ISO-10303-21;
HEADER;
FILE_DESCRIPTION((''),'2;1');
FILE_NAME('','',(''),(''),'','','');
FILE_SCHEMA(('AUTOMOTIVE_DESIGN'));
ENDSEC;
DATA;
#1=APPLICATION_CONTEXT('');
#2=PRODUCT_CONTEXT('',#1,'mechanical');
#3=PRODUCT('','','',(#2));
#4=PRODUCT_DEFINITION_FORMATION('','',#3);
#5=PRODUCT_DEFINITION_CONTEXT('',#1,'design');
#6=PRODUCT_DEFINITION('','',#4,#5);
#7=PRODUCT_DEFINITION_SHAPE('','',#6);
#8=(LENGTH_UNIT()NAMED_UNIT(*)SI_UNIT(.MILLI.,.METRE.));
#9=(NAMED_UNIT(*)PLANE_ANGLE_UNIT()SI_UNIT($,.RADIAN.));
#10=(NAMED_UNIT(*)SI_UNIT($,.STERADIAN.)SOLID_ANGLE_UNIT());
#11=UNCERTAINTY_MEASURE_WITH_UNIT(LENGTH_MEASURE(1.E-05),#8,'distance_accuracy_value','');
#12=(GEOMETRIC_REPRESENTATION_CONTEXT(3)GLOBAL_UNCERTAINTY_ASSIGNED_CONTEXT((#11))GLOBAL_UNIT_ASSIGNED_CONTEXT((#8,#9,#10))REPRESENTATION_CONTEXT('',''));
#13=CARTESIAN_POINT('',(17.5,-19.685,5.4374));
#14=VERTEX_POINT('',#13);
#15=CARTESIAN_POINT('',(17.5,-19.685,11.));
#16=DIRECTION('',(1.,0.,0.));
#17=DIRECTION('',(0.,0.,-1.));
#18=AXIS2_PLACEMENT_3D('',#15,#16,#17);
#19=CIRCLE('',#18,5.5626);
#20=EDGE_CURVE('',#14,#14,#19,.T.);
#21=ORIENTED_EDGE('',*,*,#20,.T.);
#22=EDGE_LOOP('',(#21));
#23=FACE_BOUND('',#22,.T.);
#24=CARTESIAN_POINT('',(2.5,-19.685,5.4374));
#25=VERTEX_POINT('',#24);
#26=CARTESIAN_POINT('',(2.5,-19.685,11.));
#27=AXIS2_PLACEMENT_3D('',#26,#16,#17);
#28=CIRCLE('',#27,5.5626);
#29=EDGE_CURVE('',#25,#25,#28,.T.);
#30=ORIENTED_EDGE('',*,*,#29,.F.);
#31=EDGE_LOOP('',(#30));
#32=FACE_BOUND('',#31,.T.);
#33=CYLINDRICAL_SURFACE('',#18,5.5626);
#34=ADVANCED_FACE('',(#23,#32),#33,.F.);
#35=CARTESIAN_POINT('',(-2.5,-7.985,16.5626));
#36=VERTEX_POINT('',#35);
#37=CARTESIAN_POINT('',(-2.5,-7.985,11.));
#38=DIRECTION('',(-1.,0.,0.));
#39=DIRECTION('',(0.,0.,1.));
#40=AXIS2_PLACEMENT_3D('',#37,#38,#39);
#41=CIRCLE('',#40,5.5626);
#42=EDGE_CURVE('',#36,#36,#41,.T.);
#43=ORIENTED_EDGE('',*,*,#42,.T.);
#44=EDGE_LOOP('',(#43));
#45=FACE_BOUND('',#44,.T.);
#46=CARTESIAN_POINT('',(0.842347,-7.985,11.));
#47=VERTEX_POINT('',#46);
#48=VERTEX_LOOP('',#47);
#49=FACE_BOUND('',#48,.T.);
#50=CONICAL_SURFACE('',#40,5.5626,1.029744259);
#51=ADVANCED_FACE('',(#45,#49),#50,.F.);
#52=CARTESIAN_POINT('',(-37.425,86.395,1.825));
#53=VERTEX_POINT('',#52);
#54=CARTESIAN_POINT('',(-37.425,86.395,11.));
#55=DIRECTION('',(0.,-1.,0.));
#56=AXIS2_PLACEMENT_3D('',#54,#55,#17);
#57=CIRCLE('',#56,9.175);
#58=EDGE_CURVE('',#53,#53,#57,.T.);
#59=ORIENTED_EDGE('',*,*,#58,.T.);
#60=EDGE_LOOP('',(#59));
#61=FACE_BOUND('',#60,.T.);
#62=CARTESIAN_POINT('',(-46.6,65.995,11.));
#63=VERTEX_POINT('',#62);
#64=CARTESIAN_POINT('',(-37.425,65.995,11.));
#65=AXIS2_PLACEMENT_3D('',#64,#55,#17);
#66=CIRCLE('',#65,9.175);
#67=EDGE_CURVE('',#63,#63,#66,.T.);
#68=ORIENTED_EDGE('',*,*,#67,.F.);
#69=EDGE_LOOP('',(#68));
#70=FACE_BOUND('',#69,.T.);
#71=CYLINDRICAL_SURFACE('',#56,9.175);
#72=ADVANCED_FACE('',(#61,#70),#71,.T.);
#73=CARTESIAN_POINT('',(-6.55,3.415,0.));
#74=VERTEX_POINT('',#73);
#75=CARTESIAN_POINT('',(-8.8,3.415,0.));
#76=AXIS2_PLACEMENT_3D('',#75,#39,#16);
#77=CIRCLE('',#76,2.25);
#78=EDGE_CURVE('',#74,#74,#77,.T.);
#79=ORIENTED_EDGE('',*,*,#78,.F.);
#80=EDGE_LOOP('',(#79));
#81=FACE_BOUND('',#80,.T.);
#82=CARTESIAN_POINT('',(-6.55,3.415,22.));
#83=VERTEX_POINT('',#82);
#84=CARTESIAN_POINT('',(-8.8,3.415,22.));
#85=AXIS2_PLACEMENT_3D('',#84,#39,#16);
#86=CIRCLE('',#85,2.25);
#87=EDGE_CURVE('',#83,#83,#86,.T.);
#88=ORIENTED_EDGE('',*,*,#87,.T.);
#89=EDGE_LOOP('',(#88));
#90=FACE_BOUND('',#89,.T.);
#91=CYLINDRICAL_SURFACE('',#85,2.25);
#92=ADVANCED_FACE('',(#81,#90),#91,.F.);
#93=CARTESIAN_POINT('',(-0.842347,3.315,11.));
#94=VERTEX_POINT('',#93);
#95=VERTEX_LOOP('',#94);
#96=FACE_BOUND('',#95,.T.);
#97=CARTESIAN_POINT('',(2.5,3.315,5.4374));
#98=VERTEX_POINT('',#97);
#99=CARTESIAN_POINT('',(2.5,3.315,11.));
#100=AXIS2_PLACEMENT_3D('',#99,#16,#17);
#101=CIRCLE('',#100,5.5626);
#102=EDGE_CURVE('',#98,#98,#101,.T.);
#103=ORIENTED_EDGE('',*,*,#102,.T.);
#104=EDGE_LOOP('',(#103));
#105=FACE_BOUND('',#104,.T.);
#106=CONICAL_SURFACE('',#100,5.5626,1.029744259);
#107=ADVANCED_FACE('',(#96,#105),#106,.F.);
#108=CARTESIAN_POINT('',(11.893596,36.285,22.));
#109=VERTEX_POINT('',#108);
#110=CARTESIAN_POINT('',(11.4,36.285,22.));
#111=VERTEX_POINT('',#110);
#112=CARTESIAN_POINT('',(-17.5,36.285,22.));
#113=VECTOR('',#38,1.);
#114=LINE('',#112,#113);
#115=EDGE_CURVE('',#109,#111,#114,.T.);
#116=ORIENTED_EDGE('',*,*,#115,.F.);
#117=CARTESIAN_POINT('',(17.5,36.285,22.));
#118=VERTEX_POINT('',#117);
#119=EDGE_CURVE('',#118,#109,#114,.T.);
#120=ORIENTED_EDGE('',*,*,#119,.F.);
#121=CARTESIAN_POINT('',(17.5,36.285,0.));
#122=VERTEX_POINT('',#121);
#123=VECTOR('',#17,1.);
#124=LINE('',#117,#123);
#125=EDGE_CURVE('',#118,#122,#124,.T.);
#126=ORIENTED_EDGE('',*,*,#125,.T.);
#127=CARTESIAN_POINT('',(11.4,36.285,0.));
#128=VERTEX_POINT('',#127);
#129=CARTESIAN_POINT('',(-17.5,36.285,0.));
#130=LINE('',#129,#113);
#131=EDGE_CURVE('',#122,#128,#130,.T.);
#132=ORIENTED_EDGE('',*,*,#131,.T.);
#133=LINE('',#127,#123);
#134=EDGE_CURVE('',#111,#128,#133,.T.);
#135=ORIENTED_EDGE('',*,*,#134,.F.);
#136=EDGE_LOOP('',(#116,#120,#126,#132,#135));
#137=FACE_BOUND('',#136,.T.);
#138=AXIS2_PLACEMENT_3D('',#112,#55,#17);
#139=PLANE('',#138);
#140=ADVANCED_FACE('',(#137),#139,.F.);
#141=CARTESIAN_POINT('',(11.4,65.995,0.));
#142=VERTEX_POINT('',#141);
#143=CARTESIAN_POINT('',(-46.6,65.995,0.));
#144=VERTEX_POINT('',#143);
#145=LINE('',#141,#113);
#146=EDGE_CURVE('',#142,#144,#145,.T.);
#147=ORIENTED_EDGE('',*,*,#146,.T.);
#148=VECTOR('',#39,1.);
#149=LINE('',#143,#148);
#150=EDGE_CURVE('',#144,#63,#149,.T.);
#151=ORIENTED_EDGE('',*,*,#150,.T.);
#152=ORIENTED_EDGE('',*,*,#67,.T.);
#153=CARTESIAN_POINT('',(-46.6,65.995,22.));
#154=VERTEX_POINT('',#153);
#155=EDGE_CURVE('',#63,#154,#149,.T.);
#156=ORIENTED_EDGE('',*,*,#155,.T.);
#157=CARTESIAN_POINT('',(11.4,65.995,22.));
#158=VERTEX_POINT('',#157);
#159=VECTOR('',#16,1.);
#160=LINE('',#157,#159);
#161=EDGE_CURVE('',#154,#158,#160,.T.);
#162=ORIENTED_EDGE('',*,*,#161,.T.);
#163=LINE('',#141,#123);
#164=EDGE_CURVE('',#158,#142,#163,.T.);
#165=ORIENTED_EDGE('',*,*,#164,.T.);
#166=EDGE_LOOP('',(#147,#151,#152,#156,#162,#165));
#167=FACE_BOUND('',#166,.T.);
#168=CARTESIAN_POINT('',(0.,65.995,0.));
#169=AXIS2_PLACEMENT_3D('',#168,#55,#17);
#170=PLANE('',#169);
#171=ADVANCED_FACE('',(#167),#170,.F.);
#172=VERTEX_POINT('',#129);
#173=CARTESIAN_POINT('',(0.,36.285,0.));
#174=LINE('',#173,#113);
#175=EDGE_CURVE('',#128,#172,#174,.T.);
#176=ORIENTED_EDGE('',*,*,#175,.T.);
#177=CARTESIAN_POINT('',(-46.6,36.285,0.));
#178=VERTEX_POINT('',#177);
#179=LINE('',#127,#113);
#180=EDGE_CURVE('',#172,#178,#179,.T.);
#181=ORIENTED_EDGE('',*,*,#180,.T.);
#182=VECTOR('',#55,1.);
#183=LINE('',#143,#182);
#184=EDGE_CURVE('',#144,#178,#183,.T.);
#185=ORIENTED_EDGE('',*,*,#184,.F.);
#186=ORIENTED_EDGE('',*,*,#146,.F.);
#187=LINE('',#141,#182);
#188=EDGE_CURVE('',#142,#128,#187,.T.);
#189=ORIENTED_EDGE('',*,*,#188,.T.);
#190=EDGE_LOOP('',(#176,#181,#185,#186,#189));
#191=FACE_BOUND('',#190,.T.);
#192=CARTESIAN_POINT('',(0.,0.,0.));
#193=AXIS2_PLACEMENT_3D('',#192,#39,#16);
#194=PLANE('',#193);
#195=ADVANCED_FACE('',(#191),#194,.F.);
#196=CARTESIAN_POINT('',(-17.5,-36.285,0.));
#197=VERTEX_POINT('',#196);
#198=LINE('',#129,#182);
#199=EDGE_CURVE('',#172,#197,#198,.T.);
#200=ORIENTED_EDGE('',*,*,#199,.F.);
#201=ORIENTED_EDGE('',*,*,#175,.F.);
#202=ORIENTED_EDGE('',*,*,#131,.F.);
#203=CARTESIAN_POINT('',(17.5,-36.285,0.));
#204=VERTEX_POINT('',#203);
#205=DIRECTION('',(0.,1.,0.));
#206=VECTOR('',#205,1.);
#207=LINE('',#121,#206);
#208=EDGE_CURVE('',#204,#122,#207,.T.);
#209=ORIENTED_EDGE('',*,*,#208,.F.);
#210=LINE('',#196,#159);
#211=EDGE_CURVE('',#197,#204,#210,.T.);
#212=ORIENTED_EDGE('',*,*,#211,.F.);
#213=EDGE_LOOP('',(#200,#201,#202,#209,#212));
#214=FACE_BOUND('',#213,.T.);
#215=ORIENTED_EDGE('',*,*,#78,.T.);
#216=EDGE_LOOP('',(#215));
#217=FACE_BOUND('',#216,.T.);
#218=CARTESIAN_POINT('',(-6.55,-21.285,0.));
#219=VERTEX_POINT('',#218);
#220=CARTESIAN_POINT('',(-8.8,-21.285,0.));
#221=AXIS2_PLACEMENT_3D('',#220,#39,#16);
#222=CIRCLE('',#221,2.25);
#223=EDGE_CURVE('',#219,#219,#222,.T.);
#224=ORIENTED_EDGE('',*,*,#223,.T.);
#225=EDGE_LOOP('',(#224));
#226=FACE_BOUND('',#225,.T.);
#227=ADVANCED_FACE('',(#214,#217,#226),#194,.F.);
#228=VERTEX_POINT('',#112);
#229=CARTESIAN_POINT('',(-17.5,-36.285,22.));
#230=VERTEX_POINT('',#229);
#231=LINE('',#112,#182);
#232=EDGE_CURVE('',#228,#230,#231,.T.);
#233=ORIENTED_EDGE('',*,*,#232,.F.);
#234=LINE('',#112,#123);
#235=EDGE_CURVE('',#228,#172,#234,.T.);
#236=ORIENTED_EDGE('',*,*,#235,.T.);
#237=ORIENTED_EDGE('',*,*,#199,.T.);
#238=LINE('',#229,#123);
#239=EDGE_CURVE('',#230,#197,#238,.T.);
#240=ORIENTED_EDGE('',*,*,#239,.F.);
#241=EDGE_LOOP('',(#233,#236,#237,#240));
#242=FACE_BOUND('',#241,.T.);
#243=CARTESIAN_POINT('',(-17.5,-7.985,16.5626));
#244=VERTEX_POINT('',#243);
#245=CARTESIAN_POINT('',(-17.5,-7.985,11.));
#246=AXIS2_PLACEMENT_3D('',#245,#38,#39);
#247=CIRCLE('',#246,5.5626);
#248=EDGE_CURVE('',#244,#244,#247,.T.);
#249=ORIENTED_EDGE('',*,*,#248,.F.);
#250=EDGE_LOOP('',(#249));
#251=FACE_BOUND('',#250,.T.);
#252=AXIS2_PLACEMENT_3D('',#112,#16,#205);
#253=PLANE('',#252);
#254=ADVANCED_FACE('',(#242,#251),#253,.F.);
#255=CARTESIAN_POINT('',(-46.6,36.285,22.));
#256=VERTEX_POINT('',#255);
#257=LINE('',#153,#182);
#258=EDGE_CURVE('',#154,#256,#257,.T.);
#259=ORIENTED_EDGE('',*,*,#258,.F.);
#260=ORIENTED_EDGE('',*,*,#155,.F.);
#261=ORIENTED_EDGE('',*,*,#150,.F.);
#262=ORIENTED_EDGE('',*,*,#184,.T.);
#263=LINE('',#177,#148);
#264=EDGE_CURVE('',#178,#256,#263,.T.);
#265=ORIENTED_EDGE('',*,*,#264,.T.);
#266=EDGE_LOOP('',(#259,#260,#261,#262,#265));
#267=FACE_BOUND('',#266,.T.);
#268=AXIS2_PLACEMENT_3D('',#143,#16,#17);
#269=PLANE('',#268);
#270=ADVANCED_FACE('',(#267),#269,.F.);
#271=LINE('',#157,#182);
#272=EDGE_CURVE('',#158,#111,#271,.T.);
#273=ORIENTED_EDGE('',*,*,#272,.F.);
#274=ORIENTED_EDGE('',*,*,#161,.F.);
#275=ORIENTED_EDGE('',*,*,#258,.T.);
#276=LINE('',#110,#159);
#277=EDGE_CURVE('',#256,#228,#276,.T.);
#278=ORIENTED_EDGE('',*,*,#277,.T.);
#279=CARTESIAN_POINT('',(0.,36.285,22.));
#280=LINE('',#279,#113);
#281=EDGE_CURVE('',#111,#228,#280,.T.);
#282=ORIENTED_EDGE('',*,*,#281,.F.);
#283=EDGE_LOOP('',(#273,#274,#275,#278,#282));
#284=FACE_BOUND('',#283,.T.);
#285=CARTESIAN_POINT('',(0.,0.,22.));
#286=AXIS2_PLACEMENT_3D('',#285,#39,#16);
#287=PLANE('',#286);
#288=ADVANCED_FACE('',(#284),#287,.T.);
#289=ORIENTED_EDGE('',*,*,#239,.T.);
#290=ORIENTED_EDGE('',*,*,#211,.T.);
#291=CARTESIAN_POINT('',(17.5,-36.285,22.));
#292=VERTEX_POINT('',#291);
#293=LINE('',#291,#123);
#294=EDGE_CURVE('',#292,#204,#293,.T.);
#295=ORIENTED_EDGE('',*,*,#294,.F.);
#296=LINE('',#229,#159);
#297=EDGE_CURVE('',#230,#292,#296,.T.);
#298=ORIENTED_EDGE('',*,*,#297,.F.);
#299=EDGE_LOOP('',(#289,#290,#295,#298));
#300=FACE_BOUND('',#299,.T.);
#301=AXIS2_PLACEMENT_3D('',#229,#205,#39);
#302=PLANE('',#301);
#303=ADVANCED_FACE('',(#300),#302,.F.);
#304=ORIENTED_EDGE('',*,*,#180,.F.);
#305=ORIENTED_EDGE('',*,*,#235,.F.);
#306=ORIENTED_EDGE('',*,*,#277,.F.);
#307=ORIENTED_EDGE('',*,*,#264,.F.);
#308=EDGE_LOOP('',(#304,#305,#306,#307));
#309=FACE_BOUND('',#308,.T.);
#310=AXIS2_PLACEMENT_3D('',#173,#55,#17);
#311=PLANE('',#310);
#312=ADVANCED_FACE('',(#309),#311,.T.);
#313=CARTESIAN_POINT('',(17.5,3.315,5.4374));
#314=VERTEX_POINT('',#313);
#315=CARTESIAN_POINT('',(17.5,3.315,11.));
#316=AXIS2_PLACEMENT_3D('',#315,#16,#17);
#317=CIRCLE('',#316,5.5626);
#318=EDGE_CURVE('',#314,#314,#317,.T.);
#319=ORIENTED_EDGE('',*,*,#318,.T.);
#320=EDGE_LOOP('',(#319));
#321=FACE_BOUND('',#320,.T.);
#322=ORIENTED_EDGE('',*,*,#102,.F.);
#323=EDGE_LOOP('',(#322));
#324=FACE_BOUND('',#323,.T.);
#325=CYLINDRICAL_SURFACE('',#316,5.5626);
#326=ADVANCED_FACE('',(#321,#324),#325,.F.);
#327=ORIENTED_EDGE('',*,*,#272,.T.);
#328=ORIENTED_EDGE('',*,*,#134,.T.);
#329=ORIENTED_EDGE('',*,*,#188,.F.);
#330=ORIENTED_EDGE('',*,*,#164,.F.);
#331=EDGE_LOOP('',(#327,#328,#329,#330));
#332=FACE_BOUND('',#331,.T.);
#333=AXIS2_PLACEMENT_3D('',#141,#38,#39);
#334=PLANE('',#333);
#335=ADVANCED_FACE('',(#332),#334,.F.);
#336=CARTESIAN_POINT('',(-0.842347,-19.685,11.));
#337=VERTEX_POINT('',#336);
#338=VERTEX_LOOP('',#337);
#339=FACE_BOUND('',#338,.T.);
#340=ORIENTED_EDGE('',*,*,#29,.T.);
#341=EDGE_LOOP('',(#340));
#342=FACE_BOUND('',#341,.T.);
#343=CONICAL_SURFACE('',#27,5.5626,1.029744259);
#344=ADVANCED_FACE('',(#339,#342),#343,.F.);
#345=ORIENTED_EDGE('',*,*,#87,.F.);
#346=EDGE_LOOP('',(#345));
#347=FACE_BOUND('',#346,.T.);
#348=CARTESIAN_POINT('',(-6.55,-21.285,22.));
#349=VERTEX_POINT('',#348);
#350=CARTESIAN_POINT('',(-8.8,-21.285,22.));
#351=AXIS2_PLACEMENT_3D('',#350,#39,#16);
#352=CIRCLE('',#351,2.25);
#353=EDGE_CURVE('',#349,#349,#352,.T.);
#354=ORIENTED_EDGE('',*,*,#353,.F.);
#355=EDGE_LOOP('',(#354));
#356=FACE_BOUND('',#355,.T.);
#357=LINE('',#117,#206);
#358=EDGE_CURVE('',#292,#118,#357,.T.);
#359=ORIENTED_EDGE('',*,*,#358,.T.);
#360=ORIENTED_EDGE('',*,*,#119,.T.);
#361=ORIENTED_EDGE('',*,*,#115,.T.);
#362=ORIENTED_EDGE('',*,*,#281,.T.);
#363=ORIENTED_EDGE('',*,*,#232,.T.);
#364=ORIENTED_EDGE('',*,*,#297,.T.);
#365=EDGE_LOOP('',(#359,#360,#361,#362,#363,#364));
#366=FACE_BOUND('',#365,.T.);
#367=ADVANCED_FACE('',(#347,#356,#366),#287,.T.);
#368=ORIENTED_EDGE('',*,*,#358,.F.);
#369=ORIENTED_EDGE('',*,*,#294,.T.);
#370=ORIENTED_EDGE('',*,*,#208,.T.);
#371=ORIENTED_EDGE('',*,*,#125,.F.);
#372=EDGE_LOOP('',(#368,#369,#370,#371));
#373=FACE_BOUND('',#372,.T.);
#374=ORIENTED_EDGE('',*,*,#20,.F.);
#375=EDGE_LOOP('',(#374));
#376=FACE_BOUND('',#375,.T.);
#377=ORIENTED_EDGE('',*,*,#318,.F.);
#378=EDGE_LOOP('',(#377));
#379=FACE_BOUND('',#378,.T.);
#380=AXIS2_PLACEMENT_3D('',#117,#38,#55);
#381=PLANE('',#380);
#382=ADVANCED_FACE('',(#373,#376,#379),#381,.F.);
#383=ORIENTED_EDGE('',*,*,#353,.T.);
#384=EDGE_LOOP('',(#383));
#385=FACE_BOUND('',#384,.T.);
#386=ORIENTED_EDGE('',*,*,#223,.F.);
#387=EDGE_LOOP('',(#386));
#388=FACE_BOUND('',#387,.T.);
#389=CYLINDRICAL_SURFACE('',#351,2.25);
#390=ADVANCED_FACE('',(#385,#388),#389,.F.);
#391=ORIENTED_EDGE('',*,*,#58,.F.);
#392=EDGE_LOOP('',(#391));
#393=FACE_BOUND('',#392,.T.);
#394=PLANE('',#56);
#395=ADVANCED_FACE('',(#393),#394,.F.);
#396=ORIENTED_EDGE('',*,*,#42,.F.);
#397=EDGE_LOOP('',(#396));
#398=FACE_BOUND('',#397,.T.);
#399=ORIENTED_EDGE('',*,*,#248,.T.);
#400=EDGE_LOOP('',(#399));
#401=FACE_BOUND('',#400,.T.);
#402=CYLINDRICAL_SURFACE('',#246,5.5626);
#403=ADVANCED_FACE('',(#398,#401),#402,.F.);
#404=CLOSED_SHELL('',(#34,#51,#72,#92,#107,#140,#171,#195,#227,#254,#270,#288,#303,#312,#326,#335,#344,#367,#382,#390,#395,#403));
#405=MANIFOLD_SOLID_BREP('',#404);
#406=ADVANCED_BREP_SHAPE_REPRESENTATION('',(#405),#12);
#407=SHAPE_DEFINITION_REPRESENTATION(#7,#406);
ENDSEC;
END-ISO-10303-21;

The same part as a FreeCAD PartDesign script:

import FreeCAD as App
import Part
import Sketcher

V = App.Vector
Q = App.Units.Quantity


def add_polygon(sketch, points):
    """Adds a closed chain of lines whose ends are joined by coincident constraints."""
    first, n = sketch.GeometryCount, len(points)
    for a, b in zip(points, points[1:] + points[:1]):
        sketch.addGeometry(Part.LineSegment(App.Vector(*a, 0), App.Vector(*b, 0)), False)
    for i in range(n):
        sketch.addConstraint(Sketcher.Constraint("Coincident", first + i, 2, first + (i + 1) % n, 1))

doc = App.newDocument("Part")
body = doc.addObject("PartDesign::Body", "Body")

# Sketch on XY plane
sketch1 = doc.addObject("Sketcher::SketchObject", "Sketch")
body.addObject(sketch1)
sketch1.AttachmentSupport = (doc.XY_Plane, [""])
sketch1.MapMode = "FlatFace"
add_polygon(sketch1, [(-17.5, 36.285), (-17.5, -36.285), (17.5, -36.285), (17.5, 36.285)])  # lines 0-3
sketch1.addConstraint([
    Sketcher.Constraint("Vertical", 0),
    Sketcher.Constraint("Horizontal", 1),
    Sketcher.Constraint("Vertical", 2),
    Sketcher.Constraint("Horizontal", 3),
    Sketcher.Constraint("Symmetric", 0, 2, 2, 2, -1, 1),
    Sketcher.Constraint("DistanceX", 1, 1, 1, 2, Q("35 mm")),
    Sketcher.Constraint("DistanceY", 0, 2, 0, 1, Q("72.57 mm")),
])
pad1 = doc.addObject("PartDesign::Pad", "Pad")
body.addObject(pad1)
pad1.Profile = sketch1
pad1.Length = 22

# Sketch on XZ plane
sketch2 = doc.addObject("Sketcher::SketchObject", "Sketch001")
body.addObject(sketch2)
sketch2.AttachmentSupport = (doc.XZ_Plane, [""])
sketch2.MapMode = "FlatFace"
sketch2.AttachmentOffset = App.Placement(V(0, 0, -36.285), App.Rotation())
add_polygon(sketch2, [(-46.6, 0), (-46.6, 22), (11.4, 22), (11.4, 0)])  # lines 0-3
sketch2.addConstraint([
    Sketcher.Constraint("Vertical", 0),
    Sketcher.Constraint("Horizontal", 1),
    Sketcher.Constraint("Vertical", 2),
    Sketcher.Constraint("Horizontal", 3),
    Sketcher.Constraint("PointOnObject", 2, 2, -1),
    Sketcher.Constraint("DistanceX", 1, 1, 1, 2, Q("58 mm")),
    Sketcher.Constraint("DistanceY", 0, 1, 0, 2, Q("22 mm")),
    Sketcher.Constraint("DistanceX", 0, 2, -1, 1, Q("46.6 mm")),
])
pad2 = doc.addObject("PartDesign::Pad", "Pad001")
body.addObject(pad2)
pad2.Profile = sketch2
pad2.Length = 29.71
pad2.Reversed = True

# Sketch on XZ plane
sketch3 = doc.addObject("Sketcher::SketchObject", "Sketch002")
body.addObject(sketch3)
sketch3.AttachmentSupport = (doc.XZ_Plane, [""])
sketch3.MapMode = "FlatFace"
sketch3.AttachmentOffset = App.Placement(V(0, 0, -36.285), App.Rotation())
sketch3.addGeometry(Part.Circle(V(-37.425, 11, 0), V(0, 0, 1), 9.175), False)
sketch3.addConstraint([
    Sketcher.Constraint("Diameter", 0, Q("18.35 mm")),
    Sketcher.Constraint("DistanceY", -1, 1, 0, 3, Q("11 mm")),
    Sketcher.Constraint("DistanceX", 0, 3, -1, 1, Q("37.425 mm")),
])
pad3 = doc.addObject("PartDesign::Pad", "Pad002")
body.addObject(pad3)
pad3.Profile = sketch3
pad3.Length = 50.11
pad3.Reversed = True

# Sketch on XY plane
sketch4 = doc.addObject("Sketcher::SketchObject", "Sketch003")
body.addObject(sketch4)
sketch4.AttachmentSupport = (doc.XY_Plane, [""])
sketch4.MapMode = "FlatFace"
sketch4.AttachmentOffset = App.Placement(V(0, 0, 22), App.Rotation())
sketch4.addGeometry([
    Part.Circle(V(-8.8, 3.415, 0), V(0, 0, 1), 2.25),
    Part.Circle(V(-8.8, -21.285, 0), V(0, 0, 1), 2.25),
], False)
sketch4.addConstraint([
    Sketcher.Constraint("Equal", 0, 1),
    Sketcher.Constraint("Vertical", 0, 3, 1, 3),
    Sketcher.Constraint("Diameter", 0, Q("4.5 mm")),
    Sketcher.Constraint("DistanceX", 0, 3, -1, 1, Q("8.8 mm")),
    Sketcher.Constraint("DistanceY", 1, 3, 0, 3, Q("24.7 mm")),
    Sketcher.Constraint("DistanceY", -1, 1, 0, 3, Q("3.415 mm")),
])
doc.recompute()
hole = doc.addObject("PartDesign::Hole", "Hole")
body.addObject(hole)
hole.Profile = sketch4
hole.ThreadType = "None"
hole.Diameter = 4.5
hole.DepthType = "ThroughAll"

# Sketch on YZ plane
sketch5 = doc.addObject("Sketcher::SketchObject", "Sketch004")
body.addObject(sketch5)
sketch5.AttachmentSupport = (doc.YZ_Plane, [""])
sketch5.MapMode = "FlatFace"
sketch5.AttachmentOffset = App.Placement(V(0, 0, -17.5), App.Rotation())
sketch5.addGeometry(Part.Circle(V(-7.985, 11, 0), V(0, 0, 1), 5.5626), False)
sketch5.addConstraint([
    Sketcher.Constraint("DistanceY", -1, 1, 0, 3, Q("11 mm")),
    Sketcher.Constraint("Diameter", 0, Q("11.1252 mm")),
    Sketcher.Constraint("DistanceX", 0, 3, -1, 1, Q("7.985 mm")),
])
doc.recompute()
hole2 = doc.addObject("PartDesign::Hole", "Hole001")
body.addObject(hole2)
hole2.Profile = sketch5
hole2.ThreadType = "None"
hole2.Diameter = 11.1252
hole2.DepthType = "Dimension"
hole2.Depth = 15
hole2.DrillPoint = "Angled"
hole2.DrillPointAngle = 118
hole2.Reversed = True

# Sketch on YZ plane
sketch6 = doc.addObject("Sketcher::SketchObject", "Sketch005")
body.addObject(sketch6)
sketch6.AttachmentSupport = (doc.YZ_Plane, [""])
sketch6.MapMode = "FlatFace"
sketch6.AttachmentOffset = App.Placement(V(0, 0, 17.5), App.Rotation())
sketch6.addGeometry([
    Part.Circle(V(3.315, 11, 0), V(0, 0, 1), 5.5626),
    Part.Circle(V(-19.685, 11, 0), V(0, 0, 1), 5.5626),
], False)
sketch6.addConstraint([
    Sketcher.Constraint("Equal", 0, 1),
    Sketcher.Constraint("Horizontal", 0, 3, 1, 3),
    Sketcher.Constraint("DistanceY", -1, 1, 0, 3, Q("11 mm")),
    Sketcher.Constraint("DistanceX", 1, 3, 0, 3, Q("23 mm")),
    Sketcher.Constraint("Diameter", 0, Q("11.1252 mm")),
    Sketcher.Constraint("DistanceX", -1, 1, 0, 3, Q("3.315 mm")),
])
doc.recompute()
hole3 = doc.addObject("PartDesign::Hole", "Hole002")
body.addObject(hole3)
hole3.Profile = sketch6
hole3.ThreadType = "None"
hole3.Diameter = 11.1252
hole3.DepthType = "Dimension"
hole3.Depth = 15
hole3.DrillPoint = "Angled"
hole3.DrillPointAngle = 118

doc.recompute()
